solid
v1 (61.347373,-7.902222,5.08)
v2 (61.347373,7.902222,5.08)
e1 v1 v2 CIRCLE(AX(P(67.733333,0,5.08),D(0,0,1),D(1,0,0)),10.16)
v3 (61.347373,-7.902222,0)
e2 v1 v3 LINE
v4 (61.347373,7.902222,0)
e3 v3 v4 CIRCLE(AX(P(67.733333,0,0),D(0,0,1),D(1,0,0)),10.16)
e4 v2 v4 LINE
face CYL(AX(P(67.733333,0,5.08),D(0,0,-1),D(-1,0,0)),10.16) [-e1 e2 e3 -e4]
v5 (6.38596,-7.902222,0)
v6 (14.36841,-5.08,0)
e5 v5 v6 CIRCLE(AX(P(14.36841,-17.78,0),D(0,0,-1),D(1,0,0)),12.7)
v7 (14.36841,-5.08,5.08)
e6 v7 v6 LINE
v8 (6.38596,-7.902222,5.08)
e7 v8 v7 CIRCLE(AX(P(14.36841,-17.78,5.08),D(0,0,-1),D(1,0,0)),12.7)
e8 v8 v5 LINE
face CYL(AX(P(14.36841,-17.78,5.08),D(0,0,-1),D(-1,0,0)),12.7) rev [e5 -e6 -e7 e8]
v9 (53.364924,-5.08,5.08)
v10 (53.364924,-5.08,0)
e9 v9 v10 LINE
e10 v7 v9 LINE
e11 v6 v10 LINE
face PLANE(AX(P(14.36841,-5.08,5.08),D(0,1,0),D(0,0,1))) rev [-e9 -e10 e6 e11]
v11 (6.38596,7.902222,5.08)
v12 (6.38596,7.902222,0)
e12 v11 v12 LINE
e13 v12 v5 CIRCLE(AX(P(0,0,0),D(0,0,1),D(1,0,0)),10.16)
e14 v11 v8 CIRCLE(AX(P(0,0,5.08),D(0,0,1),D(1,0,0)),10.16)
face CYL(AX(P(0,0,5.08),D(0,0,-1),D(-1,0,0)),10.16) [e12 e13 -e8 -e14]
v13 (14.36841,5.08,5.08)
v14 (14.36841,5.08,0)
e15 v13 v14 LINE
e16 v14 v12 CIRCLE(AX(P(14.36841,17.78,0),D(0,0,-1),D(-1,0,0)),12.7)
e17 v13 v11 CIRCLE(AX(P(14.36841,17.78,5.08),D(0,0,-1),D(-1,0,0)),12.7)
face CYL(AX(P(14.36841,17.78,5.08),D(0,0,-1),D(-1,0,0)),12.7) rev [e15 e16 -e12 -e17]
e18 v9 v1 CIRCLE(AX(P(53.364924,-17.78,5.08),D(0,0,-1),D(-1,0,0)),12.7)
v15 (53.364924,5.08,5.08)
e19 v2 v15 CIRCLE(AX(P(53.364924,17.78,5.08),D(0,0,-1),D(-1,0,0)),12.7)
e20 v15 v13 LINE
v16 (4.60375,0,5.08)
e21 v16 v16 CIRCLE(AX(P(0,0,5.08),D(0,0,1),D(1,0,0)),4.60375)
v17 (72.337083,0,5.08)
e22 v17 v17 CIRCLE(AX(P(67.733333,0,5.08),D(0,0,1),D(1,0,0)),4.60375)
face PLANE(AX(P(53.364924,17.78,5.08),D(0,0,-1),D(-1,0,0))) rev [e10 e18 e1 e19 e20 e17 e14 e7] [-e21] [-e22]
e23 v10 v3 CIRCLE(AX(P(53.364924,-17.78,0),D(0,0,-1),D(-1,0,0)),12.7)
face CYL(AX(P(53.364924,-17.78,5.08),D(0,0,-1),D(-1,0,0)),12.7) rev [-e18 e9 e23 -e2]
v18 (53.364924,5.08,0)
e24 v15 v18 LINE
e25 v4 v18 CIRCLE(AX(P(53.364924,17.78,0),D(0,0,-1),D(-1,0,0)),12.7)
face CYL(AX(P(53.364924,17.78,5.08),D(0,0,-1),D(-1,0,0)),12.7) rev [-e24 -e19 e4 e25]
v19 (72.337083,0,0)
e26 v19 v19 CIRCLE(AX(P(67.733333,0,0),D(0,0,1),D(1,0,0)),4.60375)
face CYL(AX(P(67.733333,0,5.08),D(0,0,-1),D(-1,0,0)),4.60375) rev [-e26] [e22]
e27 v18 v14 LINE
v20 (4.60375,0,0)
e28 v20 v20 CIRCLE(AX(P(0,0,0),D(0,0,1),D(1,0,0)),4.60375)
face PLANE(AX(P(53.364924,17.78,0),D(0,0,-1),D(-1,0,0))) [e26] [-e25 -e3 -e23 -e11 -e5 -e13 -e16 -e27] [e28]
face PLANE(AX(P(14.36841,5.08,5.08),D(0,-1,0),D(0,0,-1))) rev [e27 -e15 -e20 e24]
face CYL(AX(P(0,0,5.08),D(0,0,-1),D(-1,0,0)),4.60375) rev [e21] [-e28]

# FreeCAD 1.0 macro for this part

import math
import FreeCAD as App
import Part
import Sketcher
Q = App.Units.Quantity

doc = App.newDocument("Part")
body = doc.addObject("PartDesign::Body", "Body")

# Sketch on XY plane
sketch1 = body.newObject("Sketcher::SketchObject", "Sketch")
sketch1.AttachmentSupport = (doc.getObject("XY_Plane"), [""])
sketch1.MapMode = "FlatFace"
sketch1.addGeometry([
    Part.LineSegment(App.Vector(53.4, 5.1, 0), App.Vector(14.4, 5.1, 0)),  # 0
    Part.ArcOfCircle(Part.Circle(App.Vector(14.4, 17.8, 0), App.Vector(0, 0, 1), 12.7), math.radians(-129), math.radians(-90)),  # 1
    Part.ArcOfCircle(Part.Circle(App.Vector(0, 0, 0), App.Vector(0, 0, 1), 10.2), math.radians(51), math.radians(309)),  # 2
    Part.ArcOfCircle(Part.Circle(App.Vector(14.4, -17.8, 0), App.Vector(0, 0, 1), 12.7), math.radians(90), math.radians(129)),  # 3
    Part.LineSegment(App.Vector(14.4, -5.1, 0), App.Vector(53.4, -5.1, 0)),  # 4
    Part.ArcOfCircle(Part.Circle(App.Vector(53.4, -17.8, 0), App.Vector(0, 0, 1), 12.7), math.radians(51), math.radians(90)),  # 5
    Part.ArcOfCircle(Part.Circle(App.Vector(67.7, 0, 0), App.Vector(0, 0, 1), 10.2), math.radians(-129), math.radians(129)),  # 6
    Part.ArcOfCircle(Part.Circle(App.Vector(53.4, 17.8, 0), App.Vector(0, 0, 1), 12.7), math.radians(-90), math.radians(-51)),  # 7
    Part.Circle(App.Vector(67.7, 0, 0), App.Vector(0, 0, 1), 4.6),  # 8
    Part.Circle(App.Vector(0, 0, 0), App.Vector(0, 0, 1), 4.6),  # 9
], False)
sketch1.addConstraint([
    Sketcher.Constraint("Tangent", 0, 2, 1, 2),
    Sketcher.Constraint("Tangent", 1, 1, 2, 1),
    Sketcher.Constraint("Tangent", 2, 2, 3, 2),
    Sketcher.Constraint("Tangent", 3, 1, 4, 1),
    Sketcher.Constraint("Tangent", 4, 2, 5, 2),
    Sketcher.Constraint("Tangent", 5, 1, 6, 1),
    Sketcher.Constraint("Tangent", 6, 2, 7, 2),
    Sketcher.Constraint("Tangent", 7, 1, 0, 1),
    Sketcher.Constraint("Horizontal", 0),
    Sketcher.Constraint("Horizontal", 4),
    Sketcher.Constraint("Coincident", 2, 3, -1, 1),
    Sketcher.Constraint("Coincident", 9, 3, -1, 1),
    Sketcher.Constraint("Coincident", 8, 3, 6, 3),
    Sketcher.Constraint("Equal", 1, 3),
    Sketcher.Constraint("Equal", 3, 5),
    Sketcher.Constraint("Equal", 2, 6),
    Sketcher.Constraint("Equal", 5, 7),
    Sketcher.Constraint("Equal", 8, 9),
    Sketcher.Constraint("Symmetric", 5, 3, 7, 3, -1),
    Sketcher.Constraint("Radius", 1, Q("0.5 in")),
    Sketcher.Constraint("Radius", 2, Q("0.4 in")),
    Sketcher.Constraint("Diameter", 8, Q("0.3625 in")),
    Sketcher.Constraint("DistanceY", -1, 1, 1, 3, Q("0.7 in")),
    Sketcher.Constraint("DistanceX", 0, 2, 0, 1, 38.996514),
])
pad1 = body.newObject("PartDesign::Pad", "Pad")
pad1.Profile = sketch1
pad1.Length = Q("0.2 in")

doc.recompute()
